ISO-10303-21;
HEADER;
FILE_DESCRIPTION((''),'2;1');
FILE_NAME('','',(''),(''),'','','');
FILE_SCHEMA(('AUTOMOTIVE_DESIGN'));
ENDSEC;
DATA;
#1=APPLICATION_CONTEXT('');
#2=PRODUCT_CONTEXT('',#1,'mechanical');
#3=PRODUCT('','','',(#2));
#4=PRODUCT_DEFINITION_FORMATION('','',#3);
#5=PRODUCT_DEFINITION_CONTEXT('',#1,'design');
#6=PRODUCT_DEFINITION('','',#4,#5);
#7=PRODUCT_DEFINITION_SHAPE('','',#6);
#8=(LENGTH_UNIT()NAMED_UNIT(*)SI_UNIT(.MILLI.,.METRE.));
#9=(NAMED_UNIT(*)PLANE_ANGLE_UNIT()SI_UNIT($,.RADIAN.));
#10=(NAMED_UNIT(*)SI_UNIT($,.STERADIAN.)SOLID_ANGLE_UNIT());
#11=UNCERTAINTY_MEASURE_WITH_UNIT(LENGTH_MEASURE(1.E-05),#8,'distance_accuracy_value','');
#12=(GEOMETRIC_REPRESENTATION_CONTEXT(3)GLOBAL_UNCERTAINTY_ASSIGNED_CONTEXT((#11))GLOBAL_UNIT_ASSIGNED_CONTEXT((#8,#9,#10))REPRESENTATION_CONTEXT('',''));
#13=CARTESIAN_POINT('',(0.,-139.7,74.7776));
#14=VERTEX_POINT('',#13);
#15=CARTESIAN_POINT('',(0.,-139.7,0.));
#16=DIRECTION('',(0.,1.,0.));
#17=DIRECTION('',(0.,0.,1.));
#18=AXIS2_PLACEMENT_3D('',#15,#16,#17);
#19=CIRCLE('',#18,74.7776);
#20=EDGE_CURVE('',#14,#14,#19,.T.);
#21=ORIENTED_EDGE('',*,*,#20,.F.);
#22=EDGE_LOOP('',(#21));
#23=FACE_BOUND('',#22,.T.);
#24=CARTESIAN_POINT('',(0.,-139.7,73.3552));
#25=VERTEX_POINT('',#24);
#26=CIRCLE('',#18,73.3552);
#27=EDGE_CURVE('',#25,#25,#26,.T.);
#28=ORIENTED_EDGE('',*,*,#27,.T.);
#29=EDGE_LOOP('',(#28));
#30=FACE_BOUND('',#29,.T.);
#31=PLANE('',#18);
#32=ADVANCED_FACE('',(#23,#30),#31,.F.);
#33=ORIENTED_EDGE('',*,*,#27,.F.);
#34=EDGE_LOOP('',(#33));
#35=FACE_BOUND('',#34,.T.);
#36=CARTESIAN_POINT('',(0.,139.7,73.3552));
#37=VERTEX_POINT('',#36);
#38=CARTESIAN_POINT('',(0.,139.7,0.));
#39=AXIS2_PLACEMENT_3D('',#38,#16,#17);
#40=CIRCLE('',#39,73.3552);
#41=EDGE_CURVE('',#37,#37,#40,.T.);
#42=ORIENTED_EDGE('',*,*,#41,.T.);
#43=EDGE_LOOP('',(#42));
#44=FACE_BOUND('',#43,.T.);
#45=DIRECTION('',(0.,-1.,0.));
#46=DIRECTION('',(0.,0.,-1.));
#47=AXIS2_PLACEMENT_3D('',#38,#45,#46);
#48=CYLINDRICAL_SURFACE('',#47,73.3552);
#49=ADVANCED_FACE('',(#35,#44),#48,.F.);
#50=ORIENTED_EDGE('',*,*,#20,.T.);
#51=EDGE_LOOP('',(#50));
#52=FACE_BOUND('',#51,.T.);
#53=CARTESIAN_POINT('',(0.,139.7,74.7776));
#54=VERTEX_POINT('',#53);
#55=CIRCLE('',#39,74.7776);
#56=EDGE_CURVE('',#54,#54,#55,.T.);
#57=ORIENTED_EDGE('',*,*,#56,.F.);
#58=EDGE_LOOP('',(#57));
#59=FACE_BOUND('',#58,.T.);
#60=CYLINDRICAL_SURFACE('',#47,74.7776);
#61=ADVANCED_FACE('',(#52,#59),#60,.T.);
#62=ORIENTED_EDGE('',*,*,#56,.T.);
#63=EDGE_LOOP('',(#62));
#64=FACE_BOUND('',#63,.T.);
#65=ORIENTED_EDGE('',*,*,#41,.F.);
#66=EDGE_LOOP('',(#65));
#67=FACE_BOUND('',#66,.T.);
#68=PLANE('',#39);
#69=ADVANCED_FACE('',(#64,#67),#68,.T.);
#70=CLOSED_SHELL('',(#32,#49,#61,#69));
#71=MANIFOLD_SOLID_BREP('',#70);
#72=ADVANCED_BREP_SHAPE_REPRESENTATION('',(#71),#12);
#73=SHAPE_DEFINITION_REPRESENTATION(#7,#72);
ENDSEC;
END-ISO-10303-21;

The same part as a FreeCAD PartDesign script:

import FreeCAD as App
import Part
import Sketcher

V = App.Vector
Q = App.Units.Quantity

doc = App.newDocument("Part")
body = doc.addObject("PartDesign::Body", "Body")

# Sketch on XZ plane
sketch1 = doc.addObject("Sketcher::SketchObject", "Sketch")
body.addObject(sketch1)
sketch1.AttachmentSupport = (doc.XZ_Plane, [""])
sketch1.MapMode = "FlatFace"
sketch1.addGeometry(Part.Circle(V(0, 0, 0), V(0, 0, 1), 75), False)
sketch1.addGeometry(Part.Circle(V(0, 0, 0), V(0, 0, 1), 73), False)
sketch1.addConstraint(Sketcher.Constraint("Coincident", 0, 3, -1, 1))
sketch1.addConstraint(Sketcher.Constraint("Coincident", 1, 3, -1, 1))
sketch1.addConstraint(Sketcher.Constraint("Diameter", 0, Q("5.888 in")))
sketch1.addConstraint(Sketcher.Constraint("Diameter", 1, Q("5.776 in")))
pad1 = doc.addObject("PartDesign::Pad", "Pad")
body.addObject(pad1)
pad1.Profile = sketch1
pad1.Length = Q("11 in")
pad1.Midplane = True

doc.recompute()
